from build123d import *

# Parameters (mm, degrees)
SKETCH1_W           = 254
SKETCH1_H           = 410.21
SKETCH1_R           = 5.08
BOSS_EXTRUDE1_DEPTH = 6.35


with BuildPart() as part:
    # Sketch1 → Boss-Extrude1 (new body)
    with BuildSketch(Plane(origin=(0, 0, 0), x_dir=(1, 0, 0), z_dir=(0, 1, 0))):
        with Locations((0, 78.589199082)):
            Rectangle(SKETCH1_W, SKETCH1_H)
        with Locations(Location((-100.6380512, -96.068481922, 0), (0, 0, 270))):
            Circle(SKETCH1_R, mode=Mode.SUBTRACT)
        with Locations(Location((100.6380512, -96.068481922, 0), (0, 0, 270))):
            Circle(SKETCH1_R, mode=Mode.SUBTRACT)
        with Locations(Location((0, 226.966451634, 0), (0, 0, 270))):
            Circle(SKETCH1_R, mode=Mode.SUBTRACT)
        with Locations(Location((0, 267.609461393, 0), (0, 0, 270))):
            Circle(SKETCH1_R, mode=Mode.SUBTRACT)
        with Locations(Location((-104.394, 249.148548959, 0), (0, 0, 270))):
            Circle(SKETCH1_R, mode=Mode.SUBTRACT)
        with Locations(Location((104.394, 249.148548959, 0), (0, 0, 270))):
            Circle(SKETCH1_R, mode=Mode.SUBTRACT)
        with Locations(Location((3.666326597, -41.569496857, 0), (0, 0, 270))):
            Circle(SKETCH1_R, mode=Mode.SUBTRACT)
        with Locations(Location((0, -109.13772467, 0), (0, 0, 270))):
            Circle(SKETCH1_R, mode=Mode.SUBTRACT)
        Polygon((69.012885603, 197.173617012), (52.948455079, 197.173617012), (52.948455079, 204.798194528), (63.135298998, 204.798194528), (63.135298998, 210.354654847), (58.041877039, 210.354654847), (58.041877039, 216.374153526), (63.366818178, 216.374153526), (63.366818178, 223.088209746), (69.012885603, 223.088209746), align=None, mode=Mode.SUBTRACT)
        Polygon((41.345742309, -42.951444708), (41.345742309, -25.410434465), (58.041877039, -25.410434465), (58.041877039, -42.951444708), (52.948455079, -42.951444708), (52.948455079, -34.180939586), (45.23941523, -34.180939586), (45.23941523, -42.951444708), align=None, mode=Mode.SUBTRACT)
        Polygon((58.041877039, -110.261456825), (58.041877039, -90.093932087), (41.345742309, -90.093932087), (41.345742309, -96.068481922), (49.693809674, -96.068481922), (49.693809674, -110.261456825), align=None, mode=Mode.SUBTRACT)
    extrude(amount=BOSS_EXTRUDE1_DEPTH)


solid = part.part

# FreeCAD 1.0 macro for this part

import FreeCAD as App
import Part
import Sketcher
from FreeCAD import Vector
Q = App.Units.Quantity


def add_polygon(sketch, points):
    """Adds a closed chain of lines whose ends are joined by coincident constraints."""
    first, n = sketch.GeometryCount, len(points)
    for a, b in zip(points, points[1:] + points[:1]):
        sketch.addGeometry(Part.LineSegment(App.Vector(*a, 0), App.Vector(*b, 0)), False)
    for i in range(n):
        sketch.addConstraint(Sketcher.Constraint("Coincident", first + i, 2, first + (i + 1) % n, 1))

doc = App.newDocument("Part")
body = doc.addObject("PartDesign::Body", "Body")

# Sketch on XZ plane
sketch1 = doc.addObject("Sketcher::SketchObject", "Sketch")
body.addObject(sketch1)
sketch1.AttachmentSupport = (doc.XZ_Plane, [""])
sketch1.MapMode = "FlatFace"
add_polygon(sketch1, [(-127, -283.694199), (-127, 126.515801), (127, 126.515801), (127, -283.694199)])  # lines 0-3
sketch1.addGeometry(Part.Circle(Vector(-100.638051, 96.068482, 0), Vector(0, 0, 1), 5.08), False)  # 4
sketch1.addGeometry(Part.Circle(Vector(0, 109.137725, 0), Vector(0, 0, 1), 5.08), False)  # 5
add_polygon(sketch1, [(58.041877, 90.093932), (58.041877, 110.261457), (49.69381, 110.261457), (49.69381, 96.068482), (41.345742, 96.068482), (41.345742, 90.093932)])  # lines 6-11
sketch1.addGeometry(Part.Circle(Vector(3.666327, 41.569497, 0), Vector(0, 0, 1), 5.08), False)  # 12
add_polygon(sketch1, [(45.239415, 42.951445), (41.345742, 42.951445), (41.345742, 25.410434), (58.041877, 25.410434), (58.041877, 42.951445), (52.948455, 42.951445), (52.948455, 34.18094), (45.239415, 34.18094)])  # lines 13-20
sketch1.addGeometry(Part.Circle(Vector(100.638051, 96.068482, 0), Vector(0, 0, 1), 5.08), False)  # 21
sketch1.addGeometry(Part.Circle(Vector(-104.394, -249.148549, 0), Vector(0, 0, 1), 5.08), False)  # 22
sketch1.addGeometry(Part.Circle(Vector(0, -226.966452, 0), Vector(0, 0, 1), 5.08), False)  # 23
sketch1.addGeometry(Part.Circle(Vector(0, -267.609461, 0), Vector(0, 0, 1), 5.08), False)  # 24
add_polygon(sketch1, [(69.012886, -223.08821), (69.012886, -197.173617), (52.948455, -197.173617), (52.948455, -204.798195), (63.135299, -204.798195), (63.135299, -210.354655), (58.041877, -210.354655), (58.041877, -216.374154), (63.366818, -216.374154), (63.366818, -223.08821)])  # lines 25-34
sketch1.addGeometry(Part.Circle(Vector(104.394, -249.148549, 0), Vector(0, 0, 1), 5.08), False)  # 35
sketch1.addConstraint([
    Sketcher.Constraint("Vertical", 0),
    Sketcher.Constraint("Horizontal", 1),
    Sketcher.Constraint("Vertical", 2),
    Sketcher.Constraint("Horizontal", 3),
    Sketcher.Constraint("Vertical", 6),
    Sketcher.Constraint("Horizontal", 7),
    Sketcher.Constraint("Vertical", 8),
    Sketcher.Constraint("Horizontal", 9),
    Sketcher.Constraint("Vertical", 10),
    Sketcher.Constraint("Horizontal", 11),
    Sketcher.Constraint("Horizontal", 13),
    Sketcher.Constraint("Vertical", 14),
    Sketcher.Constraint("Horizontal", 15),
    Sketcher.Constraint("Vertical", 16),
    Sketcher.Constraint("Horizontal", 17),
    Sketcher.Constraint("Vertical", 18),
    Sketcher.Constraint("Horizontal", 19),
    Sketcher.Constraint("Vertical", 20),
    Sketcher.Constraint("Vertical", 25),
    Sketcher.Constraint("Horizontal", 26),
    Sketcher.Constraint("Vertical", 27),
    Sketcher.Constraint("Horizontal", 28),
    Sketcher.Constraint("Vertical", 29),
    Sketcher.Constraint("Horizontal", 30),
    Sketcher.Constraint("Vertical", 31),
    Sketcher.Constraint("Horizontal", 32),
    Sketcher.Constraint("Vertical", 33),
    Sketcher.Constraint("Horizontal", 34),
    Sketcher.Constraint("Equal", 4, 5),
    Sketcher.Constraint("Equal", 5, 12),
    Sketcher.Constraint("Equal", 12, 21),
    Sketcher.Constraint("Equal", 21, 22),
    Sketcher.Constraint("Equal", 22, 23),
    Sketcher.Constraint("Equal", 23, 24),
    Sketcher.Constraint("Equal", 24, 35),
    Sketcher.Constraint("Symmetric", 4, 3, 21, 3, -2),
    Sketcher.Constraint("Symmetric", 22, 3, 35, 3, -2),
    Sketcher.Constraint("PointOnObject", 5, 3, -2),
    Sketcher.Constraint("PointOnObject", 23, 3, -2),
    Sketcher.Constraint("PointOnObject", 24, 3, -2),
    Sketcher.Constraint("Horizontal", 21, 3, 8, 2),
    Sketcher.Constraint("Horizontal", 13, 2, 16, 2),
    Sketcher.Constraint("Vertical", 10, 2, 13, 2),
    Sketcher.Constraint("Vertical", 11, 2, 15, 2),
    Sketcher.Constraint("Vertical", 18, 2, 26, 2),
    Sketcher.Constraint("Vertical", 16, 2, 30, 2),
    Sketcher.Constraint("Equal", 7, 9),
    Sketcher.Constraint("Equal", 17, 30),
    Sketcher.Constraint("Diameter", 4, Q("0.4 in")),
    Sketcher.Constraint("DistanceX", 1, 1, 1, 2, Q("10 in")),
    Sketcher.Constraint("DistanceX", 0, 2, -1, 1, Q("5 in")),
    Sketcher.Constraint("DistanceY", 0, 1, 0, 2, Q("16.15 in")),
    Sketcher.Constraint("DistanceX", 22, 3, -1, 1, Q("4.11 in")),
    Sketcher.Constraint("DistanceY", 31, 2, 31, 1, 6.019499),
    Sketcher.Constraint("DistanceY", 24, 3, 12, 3, Q("12.1723999 in")),
    Sketcher.Constraint("DistanceX", 17, 2, 17, 1, 5.093422),
    Sketcher.Constraint("DistanceX", 19, 2, 19, 1, 7.70904),
    Sketcher.Constraint("DistanceX", 26, 2, 26, 1, 16.064431),
    Sketcher.Constraint("DistanceX", 32, 1, 32, 2, 5.324941),
    Sketcher.Constraint("DistanceY", 10, 2, 10, 1, 5.97455),
    Sketcher.Constraint("DistanceY", 14, 2, 14, 1, 17.54101),
    Sketcher.Constraint("DistanceY", 29, 2, 29, 1, 5.55646),
    Sketcher.Constraint("DistanceY", -1, 1, 0, 2, 126.515801),
    Sketcher.Constraint("DistanceX", -1, 1, 28, 2, 63.135299),
    Sketcher.Constraint("DistanceX", 7, 2, 7, 1, 8.348067),
    Sketcher.Constraint("DistanceY", 6, 1, 6, 2, 20.167525),
    Sketcher.Constraint("DistanceY", 18, 2, 18, 1, 8.770505),
    Sketcher.Constraint("DistanceY", 25, 1, 25, 2, 25.914593),
    Sketcher.Constraint("DistanceY", 27, 2, 27, 1, 7.624578),
    Sketcher.Constraint("DistanceX", 4, 3, -1, 1, 100.638051),
    Sketcher.Constraint("DistanceY", -1, 1, 4, 3, 96.068482),
    Sketcher.Constraint("DistanceY", 22, 3, -1, 1, 249.148549),
    Sketcher.Constraint("DistanceY", 23, 3, -1, 1, 226.966452),
    Sketcher.Constraint("DistanceY", 24, 3, -1, 1, 267.609461),
    Sketcher.Constraint("DistanceY", -1, 1, 18, 2, 34.18094),
    Sketcher.Constraint("DistanceY", 33, 2, -1, 1, 223.08821),
    Sketcher.Constraint("DistanceX", 12, 3, 6, 2, 54.37555),
    Sketcher.Constraint("DistanceY", -1, 1, 5, 3, 109.137725),
])
pad1 = doc.addObject("PartDesign::Pad", "Pad")
body.addObject(pad1)
pad1.Profile = sketch1
pad1.Length = Q("0.25 in")
pad1.Reversed = True

doc.recompute()
